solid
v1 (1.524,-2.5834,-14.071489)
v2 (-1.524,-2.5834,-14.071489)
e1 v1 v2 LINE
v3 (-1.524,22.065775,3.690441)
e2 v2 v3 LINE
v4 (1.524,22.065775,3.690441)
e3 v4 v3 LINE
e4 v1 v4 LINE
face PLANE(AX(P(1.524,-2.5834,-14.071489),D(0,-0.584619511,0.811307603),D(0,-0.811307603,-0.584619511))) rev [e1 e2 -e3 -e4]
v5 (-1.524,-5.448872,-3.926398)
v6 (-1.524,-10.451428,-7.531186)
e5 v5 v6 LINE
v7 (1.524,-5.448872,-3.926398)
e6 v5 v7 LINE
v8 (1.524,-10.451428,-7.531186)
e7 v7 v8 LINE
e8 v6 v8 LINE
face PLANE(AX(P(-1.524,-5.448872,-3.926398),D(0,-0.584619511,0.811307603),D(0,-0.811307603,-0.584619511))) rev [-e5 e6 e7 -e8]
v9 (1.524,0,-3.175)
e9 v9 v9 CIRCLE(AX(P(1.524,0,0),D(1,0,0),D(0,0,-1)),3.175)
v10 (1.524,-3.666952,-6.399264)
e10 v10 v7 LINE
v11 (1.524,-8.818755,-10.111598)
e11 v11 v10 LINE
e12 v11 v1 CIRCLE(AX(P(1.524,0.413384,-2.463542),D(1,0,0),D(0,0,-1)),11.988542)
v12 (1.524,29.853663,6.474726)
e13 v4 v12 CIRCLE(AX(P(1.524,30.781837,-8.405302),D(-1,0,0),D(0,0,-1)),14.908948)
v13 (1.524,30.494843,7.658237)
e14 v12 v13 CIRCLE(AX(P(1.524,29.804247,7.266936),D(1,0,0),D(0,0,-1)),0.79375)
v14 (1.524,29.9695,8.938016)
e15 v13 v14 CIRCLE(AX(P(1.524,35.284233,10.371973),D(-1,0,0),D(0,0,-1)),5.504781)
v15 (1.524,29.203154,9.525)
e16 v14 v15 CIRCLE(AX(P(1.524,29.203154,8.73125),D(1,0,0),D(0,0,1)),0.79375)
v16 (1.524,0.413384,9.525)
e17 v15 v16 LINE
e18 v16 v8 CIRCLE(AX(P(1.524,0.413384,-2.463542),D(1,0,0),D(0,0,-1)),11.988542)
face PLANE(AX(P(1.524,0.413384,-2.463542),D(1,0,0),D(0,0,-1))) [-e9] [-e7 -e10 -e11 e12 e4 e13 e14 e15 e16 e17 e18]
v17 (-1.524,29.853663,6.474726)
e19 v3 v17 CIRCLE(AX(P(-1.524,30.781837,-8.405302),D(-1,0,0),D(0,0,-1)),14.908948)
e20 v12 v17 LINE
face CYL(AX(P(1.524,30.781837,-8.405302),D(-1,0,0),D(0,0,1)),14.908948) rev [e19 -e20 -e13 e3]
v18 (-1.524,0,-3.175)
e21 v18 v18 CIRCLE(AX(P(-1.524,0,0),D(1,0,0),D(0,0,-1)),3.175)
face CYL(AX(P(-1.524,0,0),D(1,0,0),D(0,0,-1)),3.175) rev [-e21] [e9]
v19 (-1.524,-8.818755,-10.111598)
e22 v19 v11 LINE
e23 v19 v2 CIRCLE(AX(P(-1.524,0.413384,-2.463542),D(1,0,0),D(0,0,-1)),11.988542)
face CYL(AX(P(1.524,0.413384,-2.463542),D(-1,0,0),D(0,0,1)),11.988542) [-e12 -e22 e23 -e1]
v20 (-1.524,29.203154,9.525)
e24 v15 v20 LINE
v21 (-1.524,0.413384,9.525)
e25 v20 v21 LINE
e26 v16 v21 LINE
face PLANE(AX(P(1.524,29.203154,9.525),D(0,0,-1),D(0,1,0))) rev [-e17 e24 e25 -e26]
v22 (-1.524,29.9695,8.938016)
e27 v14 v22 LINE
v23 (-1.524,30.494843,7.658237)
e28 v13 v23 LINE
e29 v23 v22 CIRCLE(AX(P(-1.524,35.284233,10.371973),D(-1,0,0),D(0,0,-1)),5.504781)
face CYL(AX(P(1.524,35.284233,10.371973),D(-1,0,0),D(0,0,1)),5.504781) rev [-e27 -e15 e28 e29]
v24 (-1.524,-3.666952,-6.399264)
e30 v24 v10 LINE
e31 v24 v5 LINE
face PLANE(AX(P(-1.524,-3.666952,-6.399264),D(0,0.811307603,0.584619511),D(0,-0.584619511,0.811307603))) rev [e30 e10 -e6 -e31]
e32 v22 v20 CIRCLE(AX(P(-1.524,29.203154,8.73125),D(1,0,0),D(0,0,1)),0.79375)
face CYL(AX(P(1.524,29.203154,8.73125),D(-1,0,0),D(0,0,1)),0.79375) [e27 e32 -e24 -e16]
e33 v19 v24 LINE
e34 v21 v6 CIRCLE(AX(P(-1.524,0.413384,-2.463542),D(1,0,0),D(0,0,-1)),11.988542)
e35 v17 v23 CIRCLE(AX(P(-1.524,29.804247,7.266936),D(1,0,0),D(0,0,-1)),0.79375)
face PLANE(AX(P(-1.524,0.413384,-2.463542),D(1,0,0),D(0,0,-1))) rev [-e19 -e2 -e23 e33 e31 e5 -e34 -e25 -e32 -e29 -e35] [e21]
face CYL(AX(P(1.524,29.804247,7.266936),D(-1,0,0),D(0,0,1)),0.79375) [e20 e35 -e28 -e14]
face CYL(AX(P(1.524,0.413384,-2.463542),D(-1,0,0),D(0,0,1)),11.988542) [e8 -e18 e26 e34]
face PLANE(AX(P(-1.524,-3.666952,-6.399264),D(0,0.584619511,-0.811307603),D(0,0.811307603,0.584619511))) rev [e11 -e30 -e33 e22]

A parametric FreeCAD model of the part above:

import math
import FreeCAD as App
import Part
import Sketcher
from FreeCAD import Vector
Q = App.Units.Quantity

doc = App.newDocument("Part")
params = doc.addObject("Spreadsheet::Sheet", "Params")
for row, (alias, value) in enumerate([
    ("sketch1_radius", "0.03125 in"),
    ("sketch1_radius2", "0.03125 in"),
    ("pad1_length", "0.12 in"),
    ("sketch2_diameter", "0.25 in"),
    ("sketch3_length", "0.25 in"),
    ("sketch3_length2", "0.12 in"),
], start=1):
    params.set(f"A{row}", alias)
    params.set(f"B{row}", "=" + value)
    params.setAlias(f"B{row}", alias)

body = doc.addObject("PartDesign::Body", "Body")

sketch1 = body.newObject("Sketcher::SketchObject", "Sketch")
sketch1.AttachmentSupport = (doc.getObject("YZ_Plane"), [""])
sketch1.MapMode = "FlatFace"
sketch1.addGeometry(Part.LineSegment(Vector(29.203154, 9.525, 0), Vector(0.413384, 9.525, 0)), False)
sketch1.addGeometry(Part.ArcOfCircle(Part.Circle(Vector(0.413384, -2.463542, 0), Vector(0, 0, 1), 11.988542), math.radians(90), math.radians(255.524225)), False)
sketch1.addGeometry(Part.LineSegment(Vector(-2.5834, -14.071489, 0), Vector(22.065775, 3.690441, 0)), False)
sketch1.addGeometry(Part.ArcOfCircle(Part.Circle(Vector(30.781837, -8.405302, 0), Vector(0, 0, 1), 14.908948), math.radians(93.569324), math.radians(125.776115)), False)
sketch1.addGeometry(Part.ArcOfCircle(Part.Circle(Vector(29.804247, 7.266936, 0), Vector(0, 0, 1), 0.79375), math.radians(-86.430676), math.radians(29.536502)), False)
sketch1.addGeometry(Part.ArcOfCircle(Part.Circle(Vector(35.284233, 10.371973, 0), Vector(0, 0, 1), 5.504781), math.radians(-164.900686), math.radians(-150.463498)), False)
sketch1.addGeometry(Part.ArcOfCircle(Part.Circle(Vector(29.203154, 8.73125, 0), Vector(0, 0, 1), 0.79375), math.radians(15.099314), math.radians(90)), False)
sketch1.addConstraint(Sketcher.Constraint("Coincident", 0, 2, 1, 1))
sketch1.addConstraint(Sketcher.Constraint("Coincident", 1, 2, 2, 1))
sketch1.addConstraint(Sketcher.Constraint("Coincident", 2, 2, 3, 2))
sketch1.addConstraint(Sketcher.Constraint("Coincident", 3, 1, 4, 1))
sketch1.addConstraint(Sketcher.Constraint("Coincident", 4, 2, 5, 2))
sketch1.addConstraint(Sketcher.Constraint("Coincident", 5, 1, 6, 1))
sketch1.addConstraint(Sketcher.Constraint("Coincident", 6, 2, 0, 1))
sketch1.addConstraint(Sketcher.Constraint("Horizontal", 0))
sketch1.addConstraint(Sketcher.Constraint("Radius", 4, Q("0.03125 in")))
sketch1.addConstraint(Sketcher.Constraint("Radius", 6, Q("0.03125 in")))
sketch1.addConstraint(Sketcher.Constraint("DistanceY", -1, 1, 6, 3, Q("0.34375 in")))
sketch1.addConstraint(Sketcher.Constraint("Radius", 5, Q("5.504781 mm")))
sketch1.addConstraint(Sketcher.Constraint("DistanceY", -1, 1, 4, 3, Q("0.2860998 in")))
sketch1.addConstraint(Sketcher.Constraint("Radius", 1, Q("11.988542 mm")))
sketch1.addConstraint(Sketcher.Constraint("Radius", 3, Q("14.908948 mm")))
sketch1.addConstraint(Sketcher.Constraint("DistanceX", 0, 2, 0, 1, Q("28.78977 mm")))
sketch1.addConstraint(Sketcher.Constraint("DistanceY", 3, 3, -1, 1, Q("8.405302 mm")))
sketch1.addConstraint(Sketcher.Constraint("DistanceX", 1, 2, -1, 1, Q("2.5834 mm")))
sketch1.addConstraint(Sketcher.Constraint("DistanceX", -1, 1, 5, 1, Q("29.9695 mm")))
sketch1.addConstraint(Sketcher.Constraint("DistanceY", 4, 3, 4, 2, Q("0.391301 mm")))
sketch1.addConstraint(Sketcher.Constraint("DistanceY", 1, 2, -1, 1, Q("14.071489 mm")))
sketch1.addConstraint(Sketcher.Constraint("DistanceY", -1, 1, 2, 2, Q("3.690441 mm")))
sketch1.addConstraint(Sketcher.Constraint("DistanceX", 1, 3, 5, 3, Q("34.870849 mm")))
sketch1.addConstraint(Sketcher.Constraint("DistanceX", 6, 3, 5, 3, Q("6.081079 mm")))
sketch1.addConstraint(Sketcher.Constraint("DistanceX", 0, 2, 6, 3, Q("28.78977 mm")))
sketch1.addConstraint(Sketcher.Constraint("DistanceY", 3, 1, 4, 3, Q("0.79221 mm")))
sketch1.setExpression("Constraints[8]", "Params.sketch1_radius")
sketch1.setExpression("Constraints[9]", "Params.sketch1_radius2")
pad1 = body.newObject("PartDesign::Pad", "Pad")
pad1.Profile = sketch1
pad1.setExpression("Length", "Params.pad1_length")
pad1.Midplane = True

sketch2 = body.newObject("Sketcher::SketchObject", "Sketch001")
sketch2.AttachmentSupport = (doc.getObject("YZ_Plane"), [""])
sketch2.MapMode = "FlatFace"
sketch2.AttachmentOffset = App.Placement(Vector(0, 0, 0.06 * 25.4), App.Rotation())
sketch2.addGeometry(Part.Circle(Vector(0, 0, 0), Vector(0, 0, 1), 3.175), False)
sketch2.addConstraint(Sketcher.Constraint("Coincident", 0, 3, -1, 1))
sketch2.addConstraint(Sketcher.Constraint("Diameter", 0, Q("0.25 in")))
sketch2.setExpression("Constraints[1]", "Params.sketch2_diameter")
pocket1 = body.newObject("PartDesign::Pocket", "Pocket")
pocket1.Profile = sketch2
pocket1.Type = "ThroughAll"

sketch3 = body.newObject("Sketcher::SketchObject", "Sketch002")
sketch3.AttachmentSupport = (doc.getObject("YZ_Plane"), [""])
sketch3.MapMode = "FlatFace"
sketch3.AttachmentOffset = App.Placement(Vector(0, 0, 0.06 * 25.4), App.Rotation())
sketch3.addGeometry(Part.LineSegment(Vector(-5.448872, -3.926398, 0), Vector(-10.451428, -7.531186, 0)), False)
sketch3.addGeometry(Part.ArcOfCircle(Part.Circle(Vector(0.413384, -2.463542, 0), Vector(0, 0, 1), 11.988542), math.radians(-154.994372), math.radians(-140.361089)), False)
sketch3.addGeometry(Part.LineSegment(Vector(-8.818755, -10.111598, 0), Vector(-3.666952, -6.399264, 0)), False)
sketch3.addGeometry(Part.LineSegment(Vector(-3.666952, -6.399264, 0), Vector(-5.448872, -3.926398, 0)), False)
sketch3.addConstraint(Sketcher.Constraint("Coincident", 0, 2, 1, 1))
sketch3.addConstraint(Sketcher.Constraint("Coincident", 1, 2, 2, 1))
sketch3.addConstraint(Sketcher.Constraint("Coincident", 2, 2, 3, 1))
sketch3.addConstraint(Sketcher.Constraint("Coincident", 3, 2, 0, 1))
sketch3.addConstraint(Sketcher.Constraint("Parallel", 0, 2))
sketch3.addConstraint(Sketcher.Constraint("Perpendicular", 2, 3))
sketch3.addConstraint(Sketcher.Constraint("Distance", 2, Q("0.25 in")))
sketch3.addConstraint(Sketcher.Constraint("Distance", 3, Q("0.12 in")))
sketch3.addConstraint(Sketcher.Constraint("Radius", 1, Q("11.988542 mm")))
sketch3.addConstraint(Sketcher.Constraint("DistanceY", 3, 2, -1, 1, Q("3.926398 mm")))
sketch3.addConstraint(Sketcher.Constraint("DistanceY", 1, 2, 3, 2, Q("6.185199 mm")))
sketch3.addConstraint(Sketcher.Constraint("Distance", 0, Q("6.166041 mm")))
sketch3.addConstraint(Sketcher.Constraint("DistanceX", 2, 2, -1, 1, Q("3.666952 mm")))
sketch3.setExpression("Constraints[6]", "Params.sketch3_length")
sketch3.setExpression("Constraints[7]", "Params.sketch3_length2")
pocket2 = body.newObject("PartDesign::Pocket", "Pocket001")
pocket2.Profile = sketch3
pocket2.Type = "ThroughAll"

doc.recompute()
